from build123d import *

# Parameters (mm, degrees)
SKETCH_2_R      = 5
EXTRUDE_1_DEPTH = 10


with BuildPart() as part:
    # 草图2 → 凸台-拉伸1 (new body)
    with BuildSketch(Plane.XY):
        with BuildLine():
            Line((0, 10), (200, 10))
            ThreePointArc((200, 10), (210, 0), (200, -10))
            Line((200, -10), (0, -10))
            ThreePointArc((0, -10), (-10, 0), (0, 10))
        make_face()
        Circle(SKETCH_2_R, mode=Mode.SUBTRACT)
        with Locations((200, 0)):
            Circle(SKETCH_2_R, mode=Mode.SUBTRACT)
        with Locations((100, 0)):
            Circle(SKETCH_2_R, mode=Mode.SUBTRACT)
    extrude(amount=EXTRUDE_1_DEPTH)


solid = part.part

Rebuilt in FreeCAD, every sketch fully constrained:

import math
import FreeCAD as App
import Part
import Sketcher
from FreeCAD import Vector
Q = App.Units.Quantity

doc = App.newDocument("Part")
body = doc.addObject("PartDesign::Body", "Body")

sketch1 = body.newObject("Sketcher::SketchObject", "Sketch")
sketch1.AttachmentSupport = (doc.getObject("XY_Plane"), [""])
sketch1.MapMode = "FlatFace"
sketch1.addGeometry(Part.LineSegment(Vector(200, 10, 0), Vector(0, 10, 0)), False)
sketch1.addGeometry(Part.ArcOfCircle(Part.Circle(Vector(0, 0, 0), Vector(0, 0, 1), 10), math.radians(90), math.radians(270)), False)
sketch1.addGeometry(Part.LineSegment(Vector(0, -10, 0), Vector(200, -10, 0)), False)
sketch1.addGeometry(Part.ArcOfCircle(Part.Circle(Vector(200, 0, 0), Vector(0, 0, 1), 10), math.radians(-90), math.radians(90)), False)
sketch1.addGeometry(Part.Circle(Vector(200, 0, 0), Vector(0, 0, 1), 5), False)
sketch1.addGeometry(Part.Circle(Vector(100, 0, 0), Vector(0, 0, 1), 5), False)
sketch1.addGeometry(Part.Circle(Vector(0, 0, 0), Vector(0, 0, 1), 5), False)
sketch1.addConstraint(Sketcher.Constraint("Tangent", 0, 2, 1, 1))
sketch1.addConstraint(Sketcher.Constraint("Tangent", 1, 2, 2, 1))
sketch1.addConstraint(Sketcher.Constraint("Tangent", 2, 2, 3, 1))
sketch1.addConstraint(Sketcher.Constraint("Tangent", 3, 2, 0, 1))
sketch1.addConstraint(Sketcher.Constraint("Horizontal", 0))
sketch1.addConstraint(Sketcher.Constraint("Horizontal", 2))
sketch1.addConstraint(Sketcher.Constraint("Coincident", 1, 3, -1, 1))
sketch1.addConstraint(Sketcher.Constraint("Coincident", 6, 3, -1, 1))
sketch1.addConstraint(Sketcher.Constraint("Coincident", 4, 3, 3, 3))
sketch1.addConstraint(Sketcher.Constraint("Equal", 4, 5))
sketch1.addConstraint(Sketcher.Constraint("Equal", 5, 6))
sketch1.addConstraint(Sketcher.Constraint("PointOnObject", 5, 3, -1))
sketch1.addConstraint(Sketcher.Constraint("Diameter", 4, Q("10 mm")))
sketch1.addConstraint(Sketcher.Constraint("Radius", 1, Q("10 mm")))
sketch1.addConstraint(Sketcher.Constraint("DistanceX", 0, 2, 0, 1, Q("200 mm")))
sketch1.addConstraint(Sketcher.Constraint("DistanceX", -1, 1, 5, 3, Q("100 mm")))
pad1 = body.newObject("PartDesign::Pad", "Pad")
pad1.Profile = sketch1
pad1.Length = 10

doc.recompute()
